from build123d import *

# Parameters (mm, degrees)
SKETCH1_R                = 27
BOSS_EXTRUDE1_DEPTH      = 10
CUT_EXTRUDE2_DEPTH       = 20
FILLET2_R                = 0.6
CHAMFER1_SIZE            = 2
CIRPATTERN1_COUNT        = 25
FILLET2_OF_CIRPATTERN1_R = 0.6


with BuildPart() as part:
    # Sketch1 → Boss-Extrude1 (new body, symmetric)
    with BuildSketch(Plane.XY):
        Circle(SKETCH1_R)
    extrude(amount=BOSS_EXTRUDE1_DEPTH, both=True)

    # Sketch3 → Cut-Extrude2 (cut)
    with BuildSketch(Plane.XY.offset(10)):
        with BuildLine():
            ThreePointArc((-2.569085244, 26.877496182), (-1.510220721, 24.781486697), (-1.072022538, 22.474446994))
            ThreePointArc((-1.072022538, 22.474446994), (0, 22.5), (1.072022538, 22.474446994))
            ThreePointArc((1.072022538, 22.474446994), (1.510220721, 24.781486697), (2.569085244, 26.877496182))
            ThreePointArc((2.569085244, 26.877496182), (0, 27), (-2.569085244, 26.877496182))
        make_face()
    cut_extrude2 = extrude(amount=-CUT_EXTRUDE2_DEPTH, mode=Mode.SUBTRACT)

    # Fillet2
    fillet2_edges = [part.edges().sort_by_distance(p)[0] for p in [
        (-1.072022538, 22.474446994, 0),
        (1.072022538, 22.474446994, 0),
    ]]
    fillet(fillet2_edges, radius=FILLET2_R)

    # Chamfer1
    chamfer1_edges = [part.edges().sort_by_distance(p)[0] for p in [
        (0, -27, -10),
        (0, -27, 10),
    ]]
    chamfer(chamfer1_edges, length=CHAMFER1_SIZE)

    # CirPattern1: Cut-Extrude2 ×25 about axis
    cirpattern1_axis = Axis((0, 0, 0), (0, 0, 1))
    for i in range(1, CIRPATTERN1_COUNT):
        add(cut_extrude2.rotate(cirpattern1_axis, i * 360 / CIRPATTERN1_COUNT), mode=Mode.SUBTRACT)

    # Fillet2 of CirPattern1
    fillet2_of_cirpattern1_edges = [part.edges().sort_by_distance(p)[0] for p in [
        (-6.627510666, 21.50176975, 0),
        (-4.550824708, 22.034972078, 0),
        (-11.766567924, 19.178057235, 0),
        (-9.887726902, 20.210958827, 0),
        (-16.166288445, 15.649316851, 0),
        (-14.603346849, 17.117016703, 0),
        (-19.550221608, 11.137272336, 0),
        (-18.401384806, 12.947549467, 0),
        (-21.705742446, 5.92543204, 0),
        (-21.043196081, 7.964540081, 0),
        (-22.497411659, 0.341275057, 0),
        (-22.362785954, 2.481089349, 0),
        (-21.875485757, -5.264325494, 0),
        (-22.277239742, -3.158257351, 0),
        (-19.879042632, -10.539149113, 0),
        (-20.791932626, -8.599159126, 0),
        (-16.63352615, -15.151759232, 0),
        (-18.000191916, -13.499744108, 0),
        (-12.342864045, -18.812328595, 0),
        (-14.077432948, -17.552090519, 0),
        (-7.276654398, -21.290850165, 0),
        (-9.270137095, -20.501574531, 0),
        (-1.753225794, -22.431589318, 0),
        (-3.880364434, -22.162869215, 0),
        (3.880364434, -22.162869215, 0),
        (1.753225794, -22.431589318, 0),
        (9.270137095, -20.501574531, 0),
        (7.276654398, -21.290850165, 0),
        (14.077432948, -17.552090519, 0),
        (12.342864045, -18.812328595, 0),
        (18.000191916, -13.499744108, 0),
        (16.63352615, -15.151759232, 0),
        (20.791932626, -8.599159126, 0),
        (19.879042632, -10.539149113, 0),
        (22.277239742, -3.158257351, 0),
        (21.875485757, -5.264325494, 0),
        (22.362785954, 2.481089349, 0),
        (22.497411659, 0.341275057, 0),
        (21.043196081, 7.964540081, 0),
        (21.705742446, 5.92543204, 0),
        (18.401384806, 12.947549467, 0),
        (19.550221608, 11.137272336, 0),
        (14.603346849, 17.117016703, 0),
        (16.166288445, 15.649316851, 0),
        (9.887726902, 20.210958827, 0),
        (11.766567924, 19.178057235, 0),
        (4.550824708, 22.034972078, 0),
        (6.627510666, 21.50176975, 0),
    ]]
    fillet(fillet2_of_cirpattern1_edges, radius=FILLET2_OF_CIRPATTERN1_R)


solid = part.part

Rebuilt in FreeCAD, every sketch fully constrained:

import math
import FreeCAD as App
import Part
import Sketcher


def edges_at(feature, points):
    """Names of the edges that pass closest to the given points."""
    edges = feature.Shape.Edges
    near = lambda p: min(range(len(edges)), key=lambda i: edges[i].distToShape(Part.Vertex(*p))[0])
    return sorted({f"Edge{near(p) + 1}" for p in points})

doc = App.newDocument("Part")
body = doc.addObject("PartDesign::Body", "Body")

# Sketch on XY plane
sketch1 = body.newObject("Sketcher::SketchObject", "Sketch")
sketch1.AttachmentSupport = (doc.getObject("XY_Plane"), [""])
sketch1.MapMode = "FlatFace"
sketch1.addGeometry(Part.Circle(App.Vector(0, 0, 0), App.Vector(0, 0, 1), 27), False)
sketch1.addConstraint(Sketcher.Constraint("Coincident", 0, 3, -1, 1))
sketch1.addConstraint(Sketcher.Constraint("Diameter", 0, 54.0))
pad1 = body.newObject("PartDesign::Pad", "Pad")
pad1.Profile = sketch1
pad1.Length = 20
pad1.Midplane = True

# Sketch on XY plane
sketch2 = body.newObject("Sketcher::SketchObject", "Sketch001")
sketch2.AttachmentSupport = (doc.getObject("XY_Plane"), [""])
sketch2.MapMode = "FlatFace"
sketch2.AttachmentOffset = App.Placement(App.Vector(0, 0, 10), App.Rotation())
sketch2.addGeometry(Part.ArcOfCircle(Part.Circle(App.Vector(-9.5, 22.1, 0), App.Vector(0, 0, 1), 8.4), math.radians(3), math.radians(35)), False)
sketch2.addGeometry(Part.ArcOfCircle(Part.Circle(App.Vector(0, 0, 0), App.Vector(0, 0, 1), 22.5), math.radians(87.27), math.radians(92.73)), False)
sketch2.addGeometry(Part.ArcOfCircle(Part.Circle(App.Vector(9.5, 22.1, 0), App.Vector(0, 0, 1), 8.4), math.radians(145), math.radians(177)), False)
sketch2.addGeometry(Part.ArcOfCircle(Part.Circle(App.Vector(0, 0, 0), App.Vector(0, 0, 1), 27), math.radians(84.54), math.radians(95.46)), False)
sketch2.addConstraint(Sketcher.Constraint("Coincident", 0, 1, 1, 2))
sketch2.addConstraint(Sketcher.Constraint("Coincident", 1, 1, 2, 2))
sketch2.addConstraint(Sketcher.Constraint("Coincident", 2, 1, 3, 1))
sketch2.addConstraint(Sketcher.Constraint("Coincident", 3, 2, 0, 2))
sketch2.addConstraint(Sketcher.Constraint("Coincident", 1, 3, -1, 1))
sketch2.addConstraint(Sketcher.Constraint("Coincident", 3, 3, -1, 1))
sketch2.addConstraint(Sketcher.Constraint("Equal", 0, 2))
sketch2.addConstraint(Sketcher.Constraint("Symmetric", 0, 3, 2, 3, -2))
sketch2.addConstraint(Sketcher.Constraint("Radius", 3, 27.0))
sketch2.addConstraint(Sketcher.Constraint("Radius", 1, 22.5))
sketch2.addConstraint(Sketcher.Constraint("Radius", 0, 8.4118))
sketch2.addConstraint(Sketcher.Constraint("DistanceX", 0, 3, -1, 1, 9.47427))
sketch2.addConstraint(Sketcher.Constraint("DistanceY", 1, 1, 2, 1, 4.403049))
pocket1 = body.newObject("PartDesign::Pocket", "Pocket")
pocket1.Profile = sketch2
pocket1.Length = 20
doc.recompute()

fillet = body.newObject("PartDesign::Fillet", "Fillet")
fillet.Base = (pocket1, edges_at(pocket1, [(-1.072, 22.474, 0), (1.072, 22.474, 0)]))
fillet.Radius = 0.6
doc.recompute()

chamfer = body.newObject("PartDesign::Chamfer", "Chamfer")
chamfer.Base = (fillet, edges_at(fillet, [(0, -27, -10), (0, -27, 10)]))
chamfer.Size = 2
doc.recompute()

polarpattern = body.newObject("PartDesign::PolarPattern", "PolarPattern")
polarpattern.Originals = [pocket1]
polarpattern.Axis = (doc.getObject("Z_Axis"), [""])
polarpattern.Angle = 360
polarpattern.Occurrences = 25
body.Tip = polarpattern
doc.recompute()

fillet2 = body.newObject("PartDesign::Fillet", "Fillet001")
fillet2.Base = (polarpattern, edges_at(polarpattern, [
    (-6.628, 21.502, 0),
    (-4.551, 22.035, 0),
    (-11.767, 19.178, 0),
    (-9.888, 20.211, 0),
    (-16.166, 15.649, 0),
    (-14.603, 17.117, 0),
    (-19.55, 11.137, 0),
    (-18.401, 12.948, 0),
    (-21.706, 5.925, 0),
    (-21.043, 7.965, 0),
    (-22.497, 0.341, 0),
    (-22.363, 2.481, 0),
    (-21.875, -5.264, 0),
    (-22.277, -3.158, 0),
    (-19.879, -10.539, 0),
    (-20.792, -8.599, 0),
    (-16.634, -15.152, 0),
    (-18, -13.5, 0),
    (-12.343, -18.812, 0),
    (-14.077, -17.552, 0),
    (-7.277, -21.291, 0),
    (-9.27, -20.502, 0),
    (-1.753, -22.432, 0),
    (-3.88, -22.163, 0),
    (3.88, -22.163, 0),
    (1.753, -22.432, 0),
    (9.27, -20.502, 0),
    (7.277, -21.291, 0),
    (14.077, -17.552, 0),
    (12.343, -18.812, 0),
    (18, -13.5, 0),
    (16.634, -15.152, 0),
    (20.792, -8.599, 0),
    (19.879, -10.539, 0),
    (22.277, -3.158, 0),
    (21.875, -5.264, 0),
    (22.363, 2.481, 0),
    (22.497, 0.341, 0),
    (21.043, 7.965, 0),
    (21.706, 5.925, 0),
    (18.401, 12.948, 0),
    (19.55, 11.137, 0),
    (14.603, 17.117, 0),
    (16.166, 15.649, 0),
    (9.888, 20.211, 0),
    (11.767, 19.178, 0),
    (4.551, 22.035, 0),
    (6.628, 21.502, 0),
]))
fillet2.Radius = 0.6

doc.recompute()
